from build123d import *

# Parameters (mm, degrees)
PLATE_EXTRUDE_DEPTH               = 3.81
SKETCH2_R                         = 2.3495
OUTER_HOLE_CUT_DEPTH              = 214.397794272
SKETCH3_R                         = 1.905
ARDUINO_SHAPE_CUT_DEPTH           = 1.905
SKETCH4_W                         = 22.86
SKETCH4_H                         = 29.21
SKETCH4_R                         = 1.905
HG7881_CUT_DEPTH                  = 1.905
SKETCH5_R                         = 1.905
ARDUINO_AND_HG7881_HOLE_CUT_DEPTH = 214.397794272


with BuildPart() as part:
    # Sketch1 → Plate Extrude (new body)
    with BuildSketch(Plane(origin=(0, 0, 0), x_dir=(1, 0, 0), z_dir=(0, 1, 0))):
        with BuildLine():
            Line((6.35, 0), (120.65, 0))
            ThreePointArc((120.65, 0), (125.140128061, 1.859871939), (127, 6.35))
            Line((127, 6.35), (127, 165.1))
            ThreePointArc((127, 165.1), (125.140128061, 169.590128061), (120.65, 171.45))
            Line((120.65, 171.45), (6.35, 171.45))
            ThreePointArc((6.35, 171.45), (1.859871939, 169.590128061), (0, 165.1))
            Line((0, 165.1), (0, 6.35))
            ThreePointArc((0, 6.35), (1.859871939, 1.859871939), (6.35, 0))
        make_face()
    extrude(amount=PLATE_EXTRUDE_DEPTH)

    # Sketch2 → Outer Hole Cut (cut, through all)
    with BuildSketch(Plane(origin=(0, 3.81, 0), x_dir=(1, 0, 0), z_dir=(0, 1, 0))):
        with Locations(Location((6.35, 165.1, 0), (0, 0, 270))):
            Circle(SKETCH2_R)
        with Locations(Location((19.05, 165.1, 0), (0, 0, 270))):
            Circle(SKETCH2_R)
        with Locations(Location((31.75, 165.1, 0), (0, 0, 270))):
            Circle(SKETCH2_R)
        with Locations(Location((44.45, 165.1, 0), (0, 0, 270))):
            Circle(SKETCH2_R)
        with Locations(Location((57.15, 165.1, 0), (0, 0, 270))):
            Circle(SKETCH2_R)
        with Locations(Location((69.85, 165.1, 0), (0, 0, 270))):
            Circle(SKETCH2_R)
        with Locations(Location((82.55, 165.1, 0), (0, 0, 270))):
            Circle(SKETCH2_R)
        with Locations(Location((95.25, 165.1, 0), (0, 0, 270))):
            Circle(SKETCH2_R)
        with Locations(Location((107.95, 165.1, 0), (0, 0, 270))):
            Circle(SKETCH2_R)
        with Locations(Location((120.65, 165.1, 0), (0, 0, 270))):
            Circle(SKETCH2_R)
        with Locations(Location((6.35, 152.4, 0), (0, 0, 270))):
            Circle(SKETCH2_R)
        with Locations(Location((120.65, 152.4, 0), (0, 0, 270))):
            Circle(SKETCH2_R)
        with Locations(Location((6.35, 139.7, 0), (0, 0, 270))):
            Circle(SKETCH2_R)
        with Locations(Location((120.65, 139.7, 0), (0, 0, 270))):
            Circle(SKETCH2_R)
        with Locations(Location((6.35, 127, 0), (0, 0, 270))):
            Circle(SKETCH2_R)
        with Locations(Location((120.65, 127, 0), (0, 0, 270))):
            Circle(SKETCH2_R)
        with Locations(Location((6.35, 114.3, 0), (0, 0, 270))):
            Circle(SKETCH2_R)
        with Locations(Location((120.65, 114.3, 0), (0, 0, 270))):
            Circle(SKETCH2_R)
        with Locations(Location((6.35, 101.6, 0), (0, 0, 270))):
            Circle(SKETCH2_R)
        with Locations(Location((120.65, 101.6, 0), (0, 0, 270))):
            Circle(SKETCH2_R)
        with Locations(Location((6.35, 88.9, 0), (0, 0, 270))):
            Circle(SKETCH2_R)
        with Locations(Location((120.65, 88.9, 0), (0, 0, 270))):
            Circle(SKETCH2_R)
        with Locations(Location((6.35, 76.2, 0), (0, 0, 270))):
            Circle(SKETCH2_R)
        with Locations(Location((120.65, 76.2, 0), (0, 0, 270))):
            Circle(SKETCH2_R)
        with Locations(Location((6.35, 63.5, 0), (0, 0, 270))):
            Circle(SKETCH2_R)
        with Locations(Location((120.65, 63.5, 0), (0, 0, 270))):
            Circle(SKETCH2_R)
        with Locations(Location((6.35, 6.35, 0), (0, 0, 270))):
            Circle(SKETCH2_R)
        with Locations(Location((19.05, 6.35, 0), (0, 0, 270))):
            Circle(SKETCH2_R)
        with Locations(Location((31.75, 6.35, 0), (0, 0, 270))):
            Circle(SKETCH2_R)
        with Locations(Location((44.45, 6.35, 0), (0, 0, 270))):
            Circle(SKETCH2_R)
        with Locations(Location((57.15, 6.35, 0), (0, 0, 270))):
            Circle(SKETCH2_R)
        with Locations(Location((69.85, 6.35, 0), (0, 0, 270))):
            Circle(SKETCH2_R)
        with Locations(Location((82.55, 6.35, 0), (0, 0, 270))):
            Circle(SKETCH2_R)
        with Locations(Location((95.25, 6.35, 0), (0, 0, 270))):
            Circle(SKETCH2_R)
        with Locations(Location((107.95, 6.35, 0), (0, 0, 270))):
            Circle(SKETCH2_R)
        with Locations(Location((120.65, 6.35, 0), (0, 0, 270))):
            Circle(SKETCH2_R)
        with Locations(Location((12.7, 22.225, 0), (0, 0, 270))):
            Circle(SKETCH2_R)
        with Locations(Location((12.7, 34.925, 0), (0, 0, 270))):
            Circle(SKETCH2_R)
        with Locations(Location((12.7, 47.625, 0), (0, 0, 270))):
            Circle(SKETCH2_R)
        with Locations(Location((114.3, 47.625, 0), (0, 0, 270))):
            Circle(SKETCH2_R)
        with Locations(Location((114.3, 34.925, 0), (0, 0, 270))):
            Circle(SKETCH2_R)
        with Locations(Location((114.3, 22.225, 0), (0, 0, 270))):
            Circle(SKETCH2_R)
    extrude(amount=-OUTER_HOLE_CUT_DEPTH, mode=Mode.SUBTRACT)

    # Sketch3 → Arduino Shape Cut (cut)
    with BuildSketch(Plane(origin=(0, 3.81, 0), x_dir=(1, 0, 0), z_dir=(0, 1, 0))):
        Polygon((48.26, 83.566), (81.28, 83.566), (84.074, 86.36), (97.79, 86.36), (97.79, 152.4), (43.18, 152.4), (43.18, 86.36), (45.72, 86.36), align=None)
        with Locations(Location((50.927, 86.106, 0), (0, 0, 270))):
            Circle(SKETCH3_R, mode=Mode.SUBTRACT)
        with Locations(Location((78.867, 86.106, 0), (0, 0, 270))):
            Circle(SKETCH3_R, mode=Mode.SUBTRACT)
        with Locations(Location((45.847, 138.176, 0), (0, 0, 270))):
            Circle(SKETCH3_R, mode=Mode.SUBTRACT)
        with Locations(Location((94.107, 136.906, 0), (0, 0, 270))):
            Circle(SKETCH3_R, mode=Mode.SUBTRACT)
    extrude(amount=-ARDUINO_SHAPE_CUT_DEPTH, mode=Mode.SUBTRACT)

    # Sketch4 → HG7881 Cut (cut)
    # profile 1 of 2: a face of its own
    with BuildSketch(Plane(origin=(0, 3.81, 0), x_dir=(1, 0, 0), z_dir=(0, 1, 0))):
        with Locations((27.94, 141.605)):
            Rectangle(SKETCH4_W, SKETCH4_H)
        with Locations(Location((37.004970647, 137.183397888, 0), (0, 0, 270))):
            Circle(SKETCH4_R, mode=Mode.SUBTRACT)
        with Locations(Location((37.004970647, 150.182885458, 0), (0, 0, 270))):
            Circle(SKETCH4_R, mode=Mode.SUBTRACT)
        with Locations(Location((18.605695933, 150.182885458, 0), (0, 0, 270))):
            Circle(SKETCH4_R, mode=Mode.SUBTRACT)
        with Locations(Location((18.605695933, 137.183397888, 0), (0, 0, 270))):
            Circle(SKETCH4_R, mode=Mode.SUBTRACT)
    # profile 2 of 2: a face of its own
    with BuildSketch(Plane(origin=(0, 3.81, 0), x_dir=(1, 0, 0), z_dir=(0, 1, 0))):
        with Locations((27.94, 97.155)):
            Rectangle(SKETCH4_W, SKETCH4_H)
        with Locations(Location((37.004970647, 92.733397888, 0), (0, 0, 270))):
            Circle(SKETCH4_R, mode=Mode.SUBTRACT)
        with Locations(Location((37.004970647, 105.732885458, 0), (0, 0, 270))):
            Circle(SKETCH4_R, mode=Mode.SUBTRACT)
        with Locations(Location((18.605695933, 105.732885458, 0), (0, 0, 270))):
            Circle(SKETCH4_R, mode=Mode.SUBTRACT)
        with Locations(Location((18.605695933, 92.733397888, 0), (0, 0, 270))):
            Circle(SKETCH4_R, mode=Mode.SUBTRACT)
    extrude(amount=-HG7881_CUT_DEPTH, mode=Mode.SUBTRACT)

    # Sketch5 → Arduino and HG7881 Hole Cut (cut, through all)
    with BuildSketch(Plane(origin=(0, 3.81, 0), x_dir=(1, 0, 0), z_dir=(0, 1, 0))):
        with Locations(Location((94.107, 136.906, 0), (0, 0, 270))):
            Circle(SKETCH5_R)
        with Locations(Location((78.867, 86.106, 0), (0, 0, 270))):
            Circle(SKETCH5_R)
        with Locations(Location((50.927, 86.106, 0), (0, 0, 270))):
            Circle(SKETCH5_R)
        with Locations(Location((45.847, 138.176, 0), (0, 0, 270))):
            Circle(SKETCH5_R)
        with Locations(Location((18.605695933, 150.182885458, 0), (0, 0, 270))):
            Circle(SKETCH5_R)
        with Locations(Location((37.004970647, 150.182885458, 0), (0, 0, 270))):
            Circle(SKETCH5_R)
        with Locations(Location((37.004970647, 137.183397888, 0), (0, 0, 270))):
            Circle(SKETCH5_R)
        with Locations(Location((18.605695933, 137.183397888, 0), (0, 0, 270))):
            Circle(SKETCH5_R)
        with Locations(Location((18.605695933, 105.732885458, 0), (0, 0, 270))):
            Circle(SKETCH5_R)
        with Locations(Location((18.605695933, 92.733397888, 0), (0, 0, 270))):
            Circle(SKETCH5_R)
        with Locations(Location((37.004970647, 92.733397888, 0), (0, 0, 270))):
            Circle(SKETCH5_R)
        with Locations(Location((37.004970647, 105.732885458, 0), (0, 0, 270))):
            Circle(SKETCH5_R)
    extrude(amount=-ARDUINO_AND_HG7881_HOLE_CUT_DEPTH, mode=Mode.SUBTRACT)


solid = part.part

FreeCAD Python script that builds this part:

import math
import FreeCAD as App
import Part
import Sketcher
Q = App.Units.Quantity

doc = App.newDocument("Part")
params = doc.addObject("Spreadsheet::Sheet", "Params")
for row, (alias, value) in enumerate([
    ("sketch1_radius", "0.25 in"),
    ("sketch1_width", "4.5 in"),
    ("sketch1_height", "6.25 in"),
    ("pad1_length", "0.15 in"),
    ("sketch2_diameter", "0.185 in"),
    ("sketch3_diameter", "0.15 in"),
    ("sketch3_width", "1.3 in"),
    ("sketch3_width2", "0.1 in"),
    ("sketch3_height", "2.6 in"),
    ("sketch3_width3", "0.54 in"),
    ("pocket2_length", "0.075 in"),
    ("sketch4_diameter", "0.15 in"),
    ("sketch4_width", "0.9 in"),
    ("sketch4_height", "1.15 in"),
    ("pocket3_length", "0.075 in"),
    ("sketch5_diameter", "0.15 in"),
], start=1):
    params.set(f"A{row}", alias)
    params.set(f"B{row}", "=" + value)
    params.setAlias(f"B{row}", alias)

body = doc.addObject("PartDesign::Body", "Body")

# Sketch on XZ plane
sketch1 = doc.addObject("Sketcher::SketchObject", "Sketch")
body.addObject(sketch1)
sketch1.AttachmentSupport = (doc.XZ_Plane, [""])
sketch1.MapMode = "FlatFace"
sketch1.addGeometry([
    Part.LineSegment(App.Vector(6.35, 0, 0), App.Vector(120.65, 0, 0)),  # 0
    Part.ArcOfCircle(Part.Circle(App.Vector(120.65, -6.35, 0), App.Vector(0, 0, 1), 6.35), math.radians(0), math.radians(90)),  # 1
    Part.LineSegment(App.Vector(127, -6.35, 0), App.Vector(127, -165.1, 0)),  # 2
    Part.ArcOfCircle(Part.Circle(App.Vector(120.65, -165.1, 0), App.Vector(0, 0, 1), 6.35), math.radians(-90), math.radians(0)),  # 3
    Part.LineSegment(App.Vector(120.65, -171.45, 0), App.Vector(6.35, -171.45, 0)),  # 4
    Part.ArcOfCircle(Part.Circle(App.Vector(6.35, -165.1, 0), App.Vector(0, 0, 1), 6.35), math.radians(180), math.radians(270)),  # 5
    Part.LineSegment(App.Vector(0, -165.1, 0), App.Vector(0, -6.35, 0)),  # 6
    Part.ArcOfCircle(Part.Circle(App.Vector(6.35, -6.35, 0), App.Vector(0, 0, 1), 6.35), math.radians(90), math.radians(180)),  # 7
], False)
sketch1.addConstraint([
    Sketcher.Constraint("Tangent", 0, 2, 1, 2),
    Sketcher.Constraint("Tangent", 1, 1, 2, 1),
    Sketcher.Constraint("Tangent", 2, 2, 3, 2),
    Sketcher.Constraint("Tangent", 3, 1, 4, 1),
    Sketcher.Constraint("Tangent", 4, 2, 5, 2),
    Sketcher.Constraint("Tangent", 5, 1, 6, 1),
    Sketcher.Constraint("Tangent", 6, 2, 7, 2),
    Sketcher.Constraint("Tangent", 7, 1, 0, 1),
    Sketcher.Constraint("Horizontal", 0),
    Sketcher.Constraint("Vertical", 2),
    Sketcher.Constraint("Horizontal", 4),
    Sketcher.Constraint("Vertical", 6),
    Sketcher.Constraint("Equal", 1, 3),
    Sketcher.Constraint("Equal", 3, 5),
    Sketcher.Constraint("Equal", 5, 7),
    Sketcher.Constraint("PointOnObject", 0, 2, -1),
    Sketcher.Constraint("PointOnObject", 5, 1, -2),
    Sketcher.Constraint("Radius", 1, Q("0.25 in")),
    Sketcher.Constraint("DistanceX", 0, 1, 0, 2, Q("4.5 in")),
    Sketcher.Constraint("DistanceY", 2, 2, 2, 1, Q("6.25 in")),
])
sketch1.setExpression("Constraints[17]", "Params.sketch1_radius")
sketch1.setExpression("Constraints[18]", "Params.sketch1_width")
sketch1.setExpression("Constraints[19]", "Params.sketch1_height")
pad1 = doc.addObject("PartDesign::Pad", "Pad")
body.addObject(pad1)
pad1.Profile = sketch1
pad1.setExpression("Length", "Params.pad1_length")
pad1.Reversed = True

# Sketch on XZ plane
sketch2 = doc.addObject("Sketcher::SketchObject", "Sketch001")
body.addObject(sketch2)
sketch2.AttachmentSupport = (doc.XZ_Plane, [""])
sketch2.MapMode = "FlatFace"
sketch2.AttachmentOffset = App.Placement(App.Vector(0, 0, -0.15 * 25.4), App.Rotation())
sketch2.addGeometry([
    Part.Circle(App.Vector(6.35, -165.1, 0), App.Vector(0, 0, 1), 2.3495),  # 0
    Part.Circle(App.Vector(19.05, -165.1, 0), App.Vector(0, 0, 1), 2.3495),  # 1
    Part.Circle(App.Vector(31.75, -165.1, 0), App.Vector(0, 0, 1), 2.3495),  # 2
    Part.Circle(App.Vector(44.45, -165.1, 0), App.Vector(0, 0, 1), 2.3495),  # 3
    Part.Circle(App.Vector(57.15, -165.1, 0), App.Vector(0, 0, 1), 2.3495),  # 4
    Part.Circle(App.Vector(69.85, -165.1, 0), App.Vector(0, 0, 1), 2.3495),  # 5
    Part.Circle(App.Vector(82.55, -165.1, 0), App.Vector(0, 0, 1), 2.3495),  # 6
    Part.Circle(App.Vector(95.25, -165.1, 0), App.Vector(0, 0, 1), 2.3495),  # 7
    Part.Circle(App.Vector(107.95, -165.1, 0), App.Vector(0, 0, 1), 2.3495),  # 8
    Part.Circle(App.Vector(120.65, -165.1, 0), App.Vector(0, 0, 1), 2.3495),  # 9
    Part.Circle(App.Vector(6.35, -152.4, 0), App.Vector(0, 0, 1), 2.3495),  # 10
    Part.Circle(App.Vector(120.65, -152.4, 0), App.Vector(0, 0, 1), 2.3495),  # 11
    Part.Circle(App.Vector(6.35, -139.7, 0), App.Vector(0, 0, 1), 2.3495),  # 12
    Part.Circle(App.Vector(120.65, -139.7, 0), App.Vector(0, 0, 1), 2.3495),  # 13
    Part.Circle(App.Vector(6.35, -127, 0), App.Vector(0, 0, 1), 2.3495),  # 14
    Part.Circle(App.Vector(120.65, -127, 0), App.Vector(0, 0, 1), 2.3495),  # 15
    Part.Circle(App.Vector(6.35, -114.3, 0), App.Vector(0, 0, 1), 2.3495),  # 16
    Part.Circle(App.Vector(120.65, -114.3, 0), App.Vector(0, 0, 1), 2.3495),  # 17
    Part.Circle(App.Vector(6.35, -101.6, 0), App.Vector(0, 0, 1), 2.3495),  # 18
    Part.Circle(App.Vector(120.65, -101.6, 0), App.Vector(0, 0, 1), 2.3495),  # 19
    Part.Circle(App.Vector(6.35, -88.9, 0), App.Vector(0, 0, 1), 2.3495),  # 20
    Part.Circle(App.Vector(120.65, -88.9, 0), App.Vector(0, 0, 1), 2.3495),  # 21
    Part.Circle(App.Vector(6.35, -76.2, 0), App.Vector(0, 0, 1), 2.3495),  # 22
    Part.Circle(App.Vector(120.65, -76.2, 0), App.Vector(0, 0, 1), 2.3495),  # 23
    Part.Circle(App.Vector(6.35, -63.5, 0), App.Vector(0, 0, 1), 2.3495),  # 24
    Part.Circle(App.Vector(120.65, -63.5, 0), App.Vector(0, 0, 1), 2.3495),  # 25
    Part.Circle(App.Vector(6.35, -6.35, 0), App.Vector(0, 0, 1), 2.3495),  # 26
    Part.Circle(App.Vector(19.05, -6.35, 0), App.Vector(0, 0, 1), 2.3495),  # 27
    Part.Circle(App.Vector(31.75, -6.35, 0), App.Vector(0, 0, 1), 2.3495),  # 28
    Part.Circle(App.Vector(44.45, -6.35, 0), App.Vector(0, 0, 1), 2.3495),  # 29
    Part.Circle(App.Vector(57.15, -6.35, 0), App.Vector(0, 0, 1), 2.3495),  # 30
    Part.Circle(App.Vector(69.85, -6.35, 0), App.Vector(0, 0, 1), 2.3495),  # 31
    Part.Circle(App.Vector(82.55, -6.35, 0), App.Vector(0, 0, 1), 2.3495),  # 32
    Part.Circle(App.Vector(95.25, -6.35, 0), App.Vector(0, 0, 1), 2.3495),  # 33
    Part.Circle(App.Vector(107.95, -6.35, 0), App.Vector(0, 0, 1), 2.3495),  # 34
    Part.Circle(App.Vector(120.65, -6.35, 0), App.Vector(0, 0, 1), 2.3495),  # 35
    Part.Circle(App.Vector(12.7, -22.225, 0), App.Vector(0, 0, 1), 2.3495),  # 36
    Part.Circle(App.Vector(12.7, -34.925, 0), App.Vector(0, 0, 1), 2.3495),  # 37
    Part.Circle(App.Vector(12.7, -47.625, 0), App.Vector(0, 0, 1), 2.3495),  # 38
    Part.Circle(App.Vector(114.3, -47.625, 0), App.Vector(0, 0, 1), 2.3495),  # 39
    Part.Circle(App.Vector(114.3, -34.925, 0), App.Vector(0, 0, 1), 2.3495),  # 40
    Part.Circle(App.Vector(114.3, -22.225, 0), App.Vector(0, 0, 1), 2.3495),  # 41
], False)
sketch2.addConstraint([
    Sketcher.Constraint("Equal", 0, 1),
    Sketcher.Constraint("Equal", 1, 2),
    Sketcher.Constraint("Equal", 2, 3),
    Sketcher.Constraint("Equal", 3, 4),
    Sketcher.Constraint("Equal", 4, 5),
    Sketcher.Constraint("Equal", 5, 6),
    Sketcher.Constraint("Equal", 6, 7),
    Sketcher.Constraint("Equal", 7, 8),
    Sketcher.Constraint("Equal", 8, 9),
    Sketcher.Constraint("Equal", 9, 10),
    Sketcher.Constraint("Equal", 10, 11),
    Sketcher.Constraint("Equal", 11, 12),
    Sketcher.Constraint("Equal", 12, 13),
    Sketcher.Constraint("Equal", 13, 14),
    Sketcher.Constraint("Equal", 14, 15),
    Sketcher.Constraint("Equal", 15, 16),
    Sketcher.Constraint("Equal", 16, 17),
    Sketcher.Constraint("Equal", 17, 18),
    Sketcher.Constraint("Equal", 18, 19),
    Sketcher.Constraint("Equal", 19, 20),
    Sketcher.Constraint("Equal", 20, 21),
    Sketcher.Constraint("Equal", 21, 22),
    Sketcher.Constraint("Equal", 22, 23),
    Sketcher.Constraint("Equal", 23, 24),
    Sketcher.Constraint("Equal", 24, 25),
    Sketcher.Constraint("Equal", 25, 26),
    Sketcher.Constraint("Equal", 26, 27),
    Sketcher.Constraint("Equal", 27, 28),
    Sketcher.Constraint("Equal", 28, 29),
    Sketcher.Constraint("Equal", 29, 30),
    Sketcher.Constraint("Equal", 30, 31),
    Sketcher.Constraint("Equal", 31, 32),
    Sketcher.Constraint("Equal", 32, 33),
    Sketcher.Constraint("Equal", 33, 34),
    Sketcher.Constraint("Equal", 34, 35),
    Sketcher.Constraint("Equal", 35, 36),
    Sketcher.Constraint("Equal", 36, 37),
    Sketcher.Constraint("Equal", 37, 38),
    Sketcher.Constraint("Equal", 38, 39),
    Sketcher.Constraint("Equal", 39, 40),
    Sketcher.Constraint("Equal", 40, 41),
    Sketcher.Constraint("Horizontal", 0, 3, 1, 3),
    Sketcher.Constraint("Horizontal", 1, 3, 2, 3),
    Sketcher.Constraint("Horizontal", 2, 3, 3, 3),
    Sketcher.Constraint("Horizontal", 3, 3, 4, 3),
    Sketcher.Constraint("Horizontal", 4, 3, 5, 3),
    Sketcher.Constraint("Horizontal", 5, 3, 6, 3),
    Sketcher.Constraint("Horizontal", 6, 3, 7, 3),
    Sketcher.Constraint("Horizontal", 7, 3, 8, 3),
    Sketcher.Constraint("Horizontal", 8, 3, 9, 3),
    Sketcher.Constraint("Horizontal", 10, 3, 11, 3),
    Sketcher.Constraint("Horizontal", 12, 3, 13, 3),
    Sketcher.Constraint("Horizontal", 14, 3, 15, 3),
    Sketcher.Constraint("Horizontal", 16, 3, 17, 3),
    Sketcher.Constraint("Horizontal", 18, 3, 19, 3),
    Sketcher.Constraint("Horizontal", 20, 3, 21, 3),
    Sketcher.Constraint("Horizontal", 22, 3, 23, 3),
    Sketcher.Constraint("Horizontal", 24, 3, 25, 3),
    Sketcher.Constraint("Horizontal", 26, 3, 27, 3),
    Sketcher.Constraint("Horizontal", 27, 3, 28, 3),
    Sketcher.Constraint("Horizontal", 28, 3, 29, 3),
    Sketcher.Constraint("Horizontal", 29, 3, 30, 3),
    Sketcher.Constraint("Horizontal", 30, 3, 31, 3),
    Sketcher.Constraint("Horizontal", 31, 3, 32, 3),
    Sketcher.Constraint("Horizontal", 32, 3, 33, 3),
    Sketcher.Constraint("Horizontal", 33, 3, 34, 3),
    Sketcher.Constraint("Horizontal", 34, 3, 35, 3),
    Sketcher.Constraint("Horizontal", 38, 3, 39, 3),
    Sketcher.Constraint("Horizontal", 37, 3, 40, 3),
    Sketcher.Constraint("Horizontal", 36, 3, 41, 3),
    Sketcher.Constraint("Vertical", 0, 3, 10, 3),
    Sketcher.Constraint("Vertical", 9, 3, 11, 3),
    Sketcher.Constraint("Vertical", 10, 3, 12, 3),
    Sketcher.Constraint("Vertical", 11, 3, 13, 3),
    Sketcher.Constraint("Vertical", 12, 3, 14, 3),
    Sketcher.Constraint("Vertical", 13, 3, 15, 3),
    Sketcher.Constraint("Vertical", 14, 3, 16, 3),
    Sketcher.Constraint("Vertical", 15, 3, 17, 3),
    Sketcher.Constraint("Vertical", 16, 3, 18, 3),
    Sketcher.Constraint("Vertical", 17, 3, 19, 3),
    Sketcher.Constraint("Vertical", 18, 3, 20, 3),
    Sketcher.Constraint("Vertical", 19, 3, 21, 3),
    Sketcher.Constraint("Vertical", 20, 3, 22, 3),
    Sketcher.Constraint("Vertical", 21, 3, 23, 3),
    Sketcher.Constraint("Vertical", 22, 3, 24, 3),
    Sketcher.Constraint("Vertical", 23, 3, 25, 3),
    Sketcher.Constraint("Vertical", 24, 3, 26, 3),
    Sketcher.Constraint("Vertical", 1, 3, 27, 3),
    Sketcher.Constraint("Vertical", 2, 3, 28, 3),
    Sketcher.Constraint("Vertical", 3, 3, 29, 3),
    Sketcher.Constraint("Vertical", 4, 3, 30, 3),
    Sketcher.Constraint("Vertical", 5, 3, 31, 3),
    Sketcher.Constraint("Vertical", 6, 3, 32, 3),
    Sketcher.Constraint("Vertical", 7, 3, 33, 3),
    Sketcher.Constraint("Vertical", 8, 3, 34, 3),
    Sketcher.Constraint("Vertical", 25, 3, 35, 3),
    Sketcher.Constraint("Vertical", 36, 3, 37, 3),
    Sketcher.Constraint("Vertical", 37, 3, 38, 3),
    Sketcher.Constraint("Vertical", 39, 3, 40, 3),
    Sketcher.Constraint("Vertical", 40, 3, 41, 3),
    Sketcher.Constraint("Diameter", 0, Q("0.185 in")),
    Sketcher.Constraint("DistanceY", 10, 3, -1, 1, Q("6 in")),
    Sketcher.Constraint("DistanceY", 14, 3, -1, 1, Q("5 in")),
    Sketcher.Constraint("DistanceY", 18, 3, -1, 1, Q("4 in")),
    Sketcher.Constraint("DistanceY", 22, 3, -1, 1, Q("3 in")),
    Sketcher.Constraint("DistanceX", 0, 3, 2, 3, Q("1 in")),
    Sketcher.Constraint("DistanceX", 1, 3, 3, 3, Q("1 in")),
    Sketcher.Constraint("DistanceX", 2, 3, 4, 3, Q("1 in")),
    Sketcher.Constraint("DistanceX", 3, 3, 5, 3, Q("1 in")),
    Sketcher.Constraint("DistanceX", 4, 3, 6, 3, Q("1 in")),
    Sketcher.Constraint("DistanceX", 5, 3, 7, 3, Q("1 in")),
    Sketcher.Constraint("DistanceX", 6, 3, 8, 3, Q("1 in")),
    Sketcher.Constraint("DistanceX", 7, 3, 9, 3, Q("1 in")),
    Sketcher.Constraint("DistanceY", 0, 3, 12, 3, Q("1 in")),
    Sketcher.Constraint("DistanceY", 12, 3, 16, 3, Q("1 in")),
    Sketcher.Constraint("DistanceY", 16, 3, 20, 3, Q("1 in")),
    Sketcher.Constraint("DistanceY", 20, 3, 24, 3, Q("1 in")),
    Sketcher.Constraint("DistanceY", 38, 3, 36, 3, Q("1 in")),
    Sketcher.Constraint("DistanceY", 0, 3, -1, 1, Q("6.5 in")),
    Sketcher.Constraint("DistanceX", -1, 1, 36, 3, Q("0.5 in")),
    Sketcher.Constraint("DistanceX", -1, 1, 39, 3, Q("4.5 in")),
    Sketcher.Constraint("DistanceX", 0, 3, 1, 3, Q("0.5 in")),
    Sketcher.Constraint("DistanceY", 37, 3, 36, 3, Q("0.5 in")),
    Sketcher.Constraint("DistanceX", -1, 1, 0, 3, Q("0.25 in")),
    Sketcher.Constraint("DistanceY", 26, 3, -1, 1, Q("0.25 in")),
    Sketcher.Constraint("DistanceY", 36, 3, -1, 1, Q("0.875 in")),
])
sketch2.setExpression("Constraints[100]", "Params.sketch2_diameter")
pocket1 = doc.addObject("PartDesign::Pocket", "Pocket")
body.addObject(pocket1)
pocket1.Profile = sketch2
pocket1.Type = "ThroughAll"
pocket1.Reversed = True

# Sketch on XZ plane
sketch3 = doc.addObject("Sketcher::SketchObject", "Sketch002")
body.addObject(sketch3)
sketch3.AttachmentSupport = (doc.XZ_Plane, [""])
sketch3.MapMode = "FlatFace"
sketch3.AttachmentOffset = App.Placement(App.Vector(0, 0, -0.15 * 25.4), App.Rotation())
sketch3.addGeometry([
    Part.LineSegment(App.Vector(48.26, -83.566, 0), App.Vector(81.28, -83.566, 0)),  # 0
    Part.LineSegment(App.Vector(81.28, -83.566, 0), App.Vector(84.074, -86.36, 0)),  # 1
    Part.LineSegment(App.Vector(84.074, -86.36, 0), App.Vector(97.79, -86.36, 0)),  # 2
    Part.LineSegment(App.Vector(97.79, -86.36, 0), App.Vector(97.79, -152.4, 0)),  # 3
    Part.LineSegment(App.Vector(97.79, -152.4, 0), App.Vector(43.18, -152.4, 0)),  # 4
    Part.LineSegment(App.Vector(43.18, -152.4, 0), App.Vector(43.18, -86.36, 0)),  # 5
    Part.LineSegment(App.Vector(43.18, -86.36, 0), App.Vector(45.72, -86.36, 0)),  # 6
    Part.LineSegment(App.Vector(45.72, -86.36, 0), App.Vector(48.26, -83.566, 0)),  # 7
    Part.Circle(App.Vector(50.927, -86.106, 0), App.Vector(0, 0, 1), 1.905),  # 8
    Part.Circle(App.Vector(78.867, -86.106, 0), App.Vector(0, 0, 1), 1.905),  # 9
    Part.Circle(App.Vector(45.847, -138.176, 0), App.Vector(0, 0, 1), 1.905),  # 10
    Part.Circle(App.Vector(94.107, -136.906, 0), App.Vector(0, 0, 1), 1.905),  # 11
], False)
sketch3.addConstraint([
    Sketcher.Constraint("Coincident", 0, 2, 1, 1),
    Sketcher.Constraint("Coincident", 1, 2, 2, 1),
    Sketcher.Constraint("Coincident", 2, 2, 3, 1),
    Sketcher.Constraint("Coincident", 3, 2, 4, 1),
    Sketcher.Constraint("Coincident", 4, 2, 5, 1),
    Sketcher.Constraint("Coincident", 5, 2, 6, 1),
    Sketcher.Constraint("Coincident", 6, 2, 7, 1),
    Sketcher.Constraint("Coincident", 7, 2, 0, 1),
    Sketcher.Constraint("Horizontal", 0),
    Sketcher.Constraint("Horizontal", 2),
    Sketcher.Constraint("Vertical", 3),
    Sketcher.Constraint("Horizontal", 4),
    Sketcher.Constraint("Vertical", 5),
    Sketcher.Constraint("Horizontal", 6),
    Sketcher.Constraint("Equal", 8, 9),
    Sketcher.Constraint("Equal", 9, 10),
    Sketcher.Constraint("Equal", 10, 11),
    Sketcher.Constraint("Horizontal", 8, 3, 9, 3),
    Sketcher.Constraint("Horizontal", 2, 2, 5, 2),
    Sketcher.Constraint("Diameter", 8, Q("0.15 in")),
    Sketcher.Constraint("DistanceX", 0, 1, 0, 2, Q("1.3 in")),
    Sketcher.Constraint("DistanceX", 6, 1, 6, 2, Q("0.1 in")),
    Sketcher.Constraint("DistanceY", 3, 2, 3, 1, Q("2.6 in")),
    Sketcher.Constraint("DistanceY", 3, 2, -1, 1, Q("6 in")),
    Sketcher.Constraint("Angle", 1, Q("-45 deg")),
    Sketcher.Constraint("DistanceY", 11, 3, 9, 3, Q("2 in")),
    Sketcher.Constraint("DistanceX", 2, 1, 2, 2, Q("0.54 in")),
    Sketcher.Constraint("DistanceX", 4, 2, 4, 1, Q("2.15 in")),
    Sketcher.Constraint("DistanceX", -1, 1, 0, 2, Q("3.2 in")),
    Sketcher.Constraint("DistanceX", -1, 1, 4, 2, Q("1.7 in")),
    Sketcher.Constraint("DistanceX", 8, 3, 9, 3, Q("1.1 in")),
    Sketcher.Constraint("DistanceX", 10, 3, 8, 3, Q("0.2 in")),
    Sketcher.Constraint("DistanceX", 10, 3, 11, 3, Q("1.9 in")),
    Sketcher.Constraint("DistanceY", 9, 3, 0, 2, Q("0.1 in")),
    Sketcher.Constraint("DistanceY", 10, 3, -1, 1, Q("5.44 in")),
    Sketcher.Constraint("DistanceX", -1, 1, 8, 3, Q("2.005 in")),
])
sketch3.setExpression("Constraints[19]", "Params.sketch3_diameter")
sketch3.setExpression("Constraints[20]", "Params.sketch3_width")
sketch3.setExpression("Constraints[21]", "Params.sketch3_width2")
sketch3.setExpression("Constraints[22]", "Params.sketch3_height")
sketch3.setExpression("Constraints[26]", "Params.sketch3_width3")
pocket2 = doc.addObject("PartDesign::Pocket", "Pocket001")
body.addObject(pocket2)
pocket2.Profile = sketch3
pocket2.setExpression("Length", "Params.pocket2_length")
pocket2.Reversed = True

# Sketch on XZ plane
sketch4 = doc.addObject("Sketcher::SketchObject", "Sketch003")
body.addObject(sketch4)
sketch4.AttachmentSupport = (doc.XZ_Plane, [""])
sketch4.MapMode = "FlatFace"
sketch4.AttachmentOffset = App.Placement(App.Vector(0, 0, -0.15 * 25.4), App.Rotation())
sketch4.addGeometry([
    Part.LineSegment(App.Vector(16.51, -156.21, 0), App.Vector(16.51, -127, 0)),  # 0
    Part.LineSegment(App.Vector(16.51, -127, 0), App.Vector(39.37, -127, 0)),  # 1
    Part.LineSegment(App.Vector(39.37, -127, 0), App.Vector(39.37, -156.21, 0)),  # 2
    Part.LineSegment(App.Vector(39.37, -156.21, 0), App.Vector(16.51, -156.21, 0)),  # 3
    Part.Circle(App.Vector(18.605696, -137.183398, 0), App.Vector(0, 0, 1), 1.905),  # 4
    Part.Circle(App.Vector(37.004971, -137.183398, 0), App.Vector(0, 0, 1), 1.905),  # 5
    Part.Circle(App.Vector(18.605696, -150.182885, 0), App.Vector(0, 0, 1), 1.905),  # 6
    Part.Circle(App.Vector(37.004971, -150.182885, 0), App.Vector(0, 0, 1), 1.905),  # 7
    Part.LineSegment(App.Vector(16.51, -111.76, 0), App.Vector(16.51, -82.55, 0)),  # 8
    Part.LineSegment(App.Vector(16.51, -82.55, 0), App.Vector(39.37, -82.55, 0)),  # 9
    Part.LineSegment(App.Vector(39.37, -82.55, 0), App.Vector(39.37, -111.76, 0)),  # 10
    Part.LineSegment(App.Vector(39.37, -111.76, 0), App.Vector(16.51, -111.76, 0)),  # 11
    Part.Circle(App.Vector(18.605696, -92.733398, 0), App.Vector(0, 0, 1), 1.905),  # 12
    Part.Circle(App.Vector(37.004971, -92.733398, 0), App.Vector(0, 0, 1), 1.905),  # 13
    Part.Circle(App.Vector(18.605696, -105.732885, 0), App.Vector(0, 0, 1), 1.905),  # 14
    Part.Circle(App.Vector(37.004971, -105.732885, 0), App.Vector(0, 0, 1), 1.905),  # 15
], False)
sketch4.addConstraint([
    Sketcher.Constraint("Coincident", 0, 2, 1, 1),
    Sketcher.Constraint("Coincident", 1, 2, 2, 1),
    Sketcher.Constraint("Coincident", 2, 2, 3, 1),
    Sketcher.Constraint("Coincident", 3, 2, 0, 1),
    Sketcher.Constraint("Coincident", 8, 2, 9, 1),
    Sketcher.Constraint("Coincident", 9, 2, 10, 1),
    Sketcher.Constraint("Coincident", 10, 2, 11, 1),
    Sketcher.Constraint("Coincident", 11, 2, 8, 1),
    Sketcher.Constraint("Vertical", 0),
    Sketcher.Constraint("Horizontal", 1),
    Sketcher.Constraint("Vertical", 2),
    Sketcher.Constraint("Horizontal", 3),
    Sketcher.Constraint("Vertical", 8),
    Sketcher.Constraint("Horizontal", 9),
    Sketcher.Constraint("Vertical", 10),
    Sketcher.Constraint("Horizontal", 11),
    Sketcher.Constraint("Equal", 4, 5),
    Sketcher.Constraint("Equal", 5, 6),
    Sketcher.Constraint("Equal", 6, 7),
    Sketcher.Constraint("Equal", 7, 12),
    Sketcher.Constraint("Equal", 12, 13),
    Sketcher.Constraint("Equal", 13, 14),
    Sketcher.Constraint("Equal", 14, 15),
    Sketcher.Constraint("Horizontal", 4, 3, 5, 3),
    Sketcher.Constraint("Horizontal", 6, 3, 7, 3),
    Sketcher.Constraint("Horizontal", 12, 3, 13, 3),
    Sketcher.Constraint("Horizontal", 14, 3, 15, 3),
    Sketcher.Constraint("Vertical", 4, 3, 6, 3),
    Sketcher.Constraint("Vertical", 5, 3, 7, 3),
    Sketcher.Constraint("Vertical", 6, 3, 12, 3),
    Sketcher.Constraint("Vertical", 7, 3, 13, 3),
    Sketcher.Constraint("Vertical", 12, 3, 14, 3),
    Sketcher.Constraint("Vertical", 13, 3, 15, 3),
    Sketcher.Constraint("Vertical", 3, 2, 8, 2),
    Sketcher.Constraint("Vertical", 2, 2, 9, 2),
    Sketcher.Constraint("Equal", 2, 8),
    Sketcher.Constraint("Diameter", 4, Q("0.15 in")),
    Sketcher.Constraint("DistanceX", 1, 1, 1, 2, Q("0.9 in")),
    Sketcher.Constraint("DistanceY", 0, 2, -1, 1, Q("5 in")),
    Sketcher.Constraint("DistanceY", 0, 1, 0, 2, Q("1.15 in")),
    Sketcher.Constraint("DistanceY", 10, 2, -1, 1, Q("4.4 in")),
    Sketcher.Constraint("DistanceX", -1, 1, 0, 2, Q("0.65 in")),
    Sketcher.Constraint("DistanceY", 4, 3, 12, 3, Q("1.75 in")),
    Sketcher.Constraint("DistanceY", 6, 3, 14, 3, Q("1.75 in")),
    Sketcher.Constraint("DistanceX", -1, 1, 5, 3, 37.004971),
    Sketcher.Constraint("DistanceX", -1, 1, 4, 3, 18.605696),
    Sketcher.Constraint("DistanceY", 4, 3, -1, 1, 137.183398),
    Sketcher.Constraint("DistanceY", 6, 3, -1, 1, 150.182885),
])
sketch4.setExpression("Constraints[36]", "Params.sketch4_diameter")
sketch4.setExpression("Constraints[37]", "Params.sketch4_width")
sketch4.setExpression("Constraints[39]", "Params.sketch4_height")
pocket3 = doc.addObject("PartDesign::Pocket", "Pocket002")
body.addObject(pocket3)
pocket3.Profile = sketch4
pocket3.setExpression("Length", "Params.pocket3_length")
pocket3.Reversed = True

# Sketch on XZ plane
sketch5 = doc.addObject("Sketcher::SketchObject", "Sketch004")
body.addObject(sketch5)
sketch5.AttachmentSupport = (doc.XZ_Plane, [""])
sketch5.MapMode = "FlatFace"
sketch5.AttachmentOffset = App.Placement(App.Vector(0, 0, -0.15 * 25.4), App.Rotation())
sketch5.addGeometry([
    Part.Circle(App.Vector(94.107, -136.906, 0), App.Vector(0, 0, 1), 1.905),  # 0
    Part.Circle(App.Vector(78.867, -86.106, 0), App.Vector(0, 0, 1), 1.905),  # 1
    Part.Circle(App.Vector(50.927, -86.106, 0), App.Vector(0, 0, 1), 1.905),  # 2
    Part.Circle(App.Vector(45.847, -138.176, 0), App.Vector(0, 0, 1), 1.905),  # 3
    Part.Circle(App.Vector(18.605696, -150.182885, 0), App.Vector(0, 0, 1), 1.905),  # 4
    Part.Circle(App.Vector(37.004971, -150.182885, 0), App.Vector(0, 0, 1), 1.905),  # 5
    Part.Circle(App.Vector(37.004971, -137.183398, 0), App.Vector(0, 0, 1), 1.905),  # 6
    Part.Circle(App.Vector(18.605696, -137.183398, 0), App.Vector(0, 0, 1), 1.905),  # 7
    Part.Circle(App.Vector(18.605696, -105.732885, 0), App.Vector(0, 0, 1), 1.905),  # 8
    Part.Circle(App.Vector(18.605696, -92.733398, 0), App.Vector(0, 0, 1), 1.905),  # 9
    Part.Circle(App.Vector(37.004971, -92.733398, 0), App.Vector(0, 0, 1), 1.905),  # 10
    Part.Circle(App.Vector(37.004971, -105.732885, 0), App.Vector(0, 0, 1), 1.905),  # 11
], False)
sketch5.addConstraint([
    Sketcher.Constraint("Equal", 0, 1),
    Sketcher.Constraint("Equal", 1, 2),
    Sketcher.Constraint("Equal", 2, 3),
    Sketcher.Constraint("Equal", 3, 4),
    Sketcher.Constraint("Equal", 4, 5),
    Sketcher.Constraint("Equal", 5, 6),
    Sketcher.Constraint("Equal", 6, 7),
    Sketcher.Constraint("Equal", 7, 8),
    Sketcher.Constraint("Equal", 8, 9),
    Sketcher.Constraint("Equal", 9, 10),
    Sketcher.Constraint("Equal", 10, 11),
    Sketcher.Constraint("Horizontal", 1, 3, 2, 3),
    Sketcher.Constraint("Horizontal", 4, 3, 5, 3),
    Sketcher.Constraint("Horizontal", 6, 3, 7, 3),
    Sketcher.Constraint("Horizontal", 9, 3, 10, 3),
    Sketcher.Constraint("Horizontal", 8, 3, 11, 3),
    Sketcher.Constraint("Vertical", 5, 3, 6, 3),
    Sketcher.Constraint("Vertical", 4, 3, 7, 3),
    Sketcher.Constraint("Vertical", 7, 3, 8, 3),
    Sketcher.Constraint("Vertical", 8, 3, 9, 3),
    Sketcher.Constraint("Vertical", 6, 3, 10, 3),
    Sketcher.Constraint("Vertical", 10, 3, 11, 3),
    Sketcher.Constraint("Diameter", 0, Q("0.15 in")),
    Sketcher.Constraint("DistanceY", 0, 3, 1, 3, Q("2 in")),
    Sketcher.Constraint("DistanceX", 1, 3, 0, 3, Q("0.6 in")),
    Sketcher.Constraint("DistanceX", 2, 3, 1, 3, Q("1.1 in")),
    Sketcher.Constraint("DistanceX", 3, 3, 0, 3, Q("1.9 in")),
    Sketcher.Constraint("DistanceY", 0, 3, -1, 1, Q("5.39 in")),
    Sketcher.Constraint("DistanceY", 3, 3, -1, 1, Q("5.44 in")),
    Sketcher.Constraint("DistanceY", 4, 3, 8, 3, Q("1.75 in")),
    Sketcher.Constraint("DistanceY", 7, 3, 9, 3, Q("1.75 in")),
    Sketcher.Constraint("DistanceX", -1, 1, 0, 3, Q("3.705 in")),
    Sketcher.Constraint("DistanceX", -1, 1, 5, 3, 37.004971),
    Sketcher.Constraint("DistanceX", -1, 1, 4, 3, 18.605696),
    Sketcher.Constraint("DistanceY", 4, 3, -1, 1, 150.182885),
    Sketcher.Constraint("DistanceY", 6, 3, -1, 1, 137.183398),
])
sketch5.setExpression("Constraints[22]", "Params.sketch5_diameter")
pocket4 = doc.addObject("PartDesign::Pocket", "Pocket003")
body.addObject(pocket4)
pocket4.Profile = sketch5
pocket4.Type = "ThroughAll"
pocket4.Reversed = True

doc.recompute()
